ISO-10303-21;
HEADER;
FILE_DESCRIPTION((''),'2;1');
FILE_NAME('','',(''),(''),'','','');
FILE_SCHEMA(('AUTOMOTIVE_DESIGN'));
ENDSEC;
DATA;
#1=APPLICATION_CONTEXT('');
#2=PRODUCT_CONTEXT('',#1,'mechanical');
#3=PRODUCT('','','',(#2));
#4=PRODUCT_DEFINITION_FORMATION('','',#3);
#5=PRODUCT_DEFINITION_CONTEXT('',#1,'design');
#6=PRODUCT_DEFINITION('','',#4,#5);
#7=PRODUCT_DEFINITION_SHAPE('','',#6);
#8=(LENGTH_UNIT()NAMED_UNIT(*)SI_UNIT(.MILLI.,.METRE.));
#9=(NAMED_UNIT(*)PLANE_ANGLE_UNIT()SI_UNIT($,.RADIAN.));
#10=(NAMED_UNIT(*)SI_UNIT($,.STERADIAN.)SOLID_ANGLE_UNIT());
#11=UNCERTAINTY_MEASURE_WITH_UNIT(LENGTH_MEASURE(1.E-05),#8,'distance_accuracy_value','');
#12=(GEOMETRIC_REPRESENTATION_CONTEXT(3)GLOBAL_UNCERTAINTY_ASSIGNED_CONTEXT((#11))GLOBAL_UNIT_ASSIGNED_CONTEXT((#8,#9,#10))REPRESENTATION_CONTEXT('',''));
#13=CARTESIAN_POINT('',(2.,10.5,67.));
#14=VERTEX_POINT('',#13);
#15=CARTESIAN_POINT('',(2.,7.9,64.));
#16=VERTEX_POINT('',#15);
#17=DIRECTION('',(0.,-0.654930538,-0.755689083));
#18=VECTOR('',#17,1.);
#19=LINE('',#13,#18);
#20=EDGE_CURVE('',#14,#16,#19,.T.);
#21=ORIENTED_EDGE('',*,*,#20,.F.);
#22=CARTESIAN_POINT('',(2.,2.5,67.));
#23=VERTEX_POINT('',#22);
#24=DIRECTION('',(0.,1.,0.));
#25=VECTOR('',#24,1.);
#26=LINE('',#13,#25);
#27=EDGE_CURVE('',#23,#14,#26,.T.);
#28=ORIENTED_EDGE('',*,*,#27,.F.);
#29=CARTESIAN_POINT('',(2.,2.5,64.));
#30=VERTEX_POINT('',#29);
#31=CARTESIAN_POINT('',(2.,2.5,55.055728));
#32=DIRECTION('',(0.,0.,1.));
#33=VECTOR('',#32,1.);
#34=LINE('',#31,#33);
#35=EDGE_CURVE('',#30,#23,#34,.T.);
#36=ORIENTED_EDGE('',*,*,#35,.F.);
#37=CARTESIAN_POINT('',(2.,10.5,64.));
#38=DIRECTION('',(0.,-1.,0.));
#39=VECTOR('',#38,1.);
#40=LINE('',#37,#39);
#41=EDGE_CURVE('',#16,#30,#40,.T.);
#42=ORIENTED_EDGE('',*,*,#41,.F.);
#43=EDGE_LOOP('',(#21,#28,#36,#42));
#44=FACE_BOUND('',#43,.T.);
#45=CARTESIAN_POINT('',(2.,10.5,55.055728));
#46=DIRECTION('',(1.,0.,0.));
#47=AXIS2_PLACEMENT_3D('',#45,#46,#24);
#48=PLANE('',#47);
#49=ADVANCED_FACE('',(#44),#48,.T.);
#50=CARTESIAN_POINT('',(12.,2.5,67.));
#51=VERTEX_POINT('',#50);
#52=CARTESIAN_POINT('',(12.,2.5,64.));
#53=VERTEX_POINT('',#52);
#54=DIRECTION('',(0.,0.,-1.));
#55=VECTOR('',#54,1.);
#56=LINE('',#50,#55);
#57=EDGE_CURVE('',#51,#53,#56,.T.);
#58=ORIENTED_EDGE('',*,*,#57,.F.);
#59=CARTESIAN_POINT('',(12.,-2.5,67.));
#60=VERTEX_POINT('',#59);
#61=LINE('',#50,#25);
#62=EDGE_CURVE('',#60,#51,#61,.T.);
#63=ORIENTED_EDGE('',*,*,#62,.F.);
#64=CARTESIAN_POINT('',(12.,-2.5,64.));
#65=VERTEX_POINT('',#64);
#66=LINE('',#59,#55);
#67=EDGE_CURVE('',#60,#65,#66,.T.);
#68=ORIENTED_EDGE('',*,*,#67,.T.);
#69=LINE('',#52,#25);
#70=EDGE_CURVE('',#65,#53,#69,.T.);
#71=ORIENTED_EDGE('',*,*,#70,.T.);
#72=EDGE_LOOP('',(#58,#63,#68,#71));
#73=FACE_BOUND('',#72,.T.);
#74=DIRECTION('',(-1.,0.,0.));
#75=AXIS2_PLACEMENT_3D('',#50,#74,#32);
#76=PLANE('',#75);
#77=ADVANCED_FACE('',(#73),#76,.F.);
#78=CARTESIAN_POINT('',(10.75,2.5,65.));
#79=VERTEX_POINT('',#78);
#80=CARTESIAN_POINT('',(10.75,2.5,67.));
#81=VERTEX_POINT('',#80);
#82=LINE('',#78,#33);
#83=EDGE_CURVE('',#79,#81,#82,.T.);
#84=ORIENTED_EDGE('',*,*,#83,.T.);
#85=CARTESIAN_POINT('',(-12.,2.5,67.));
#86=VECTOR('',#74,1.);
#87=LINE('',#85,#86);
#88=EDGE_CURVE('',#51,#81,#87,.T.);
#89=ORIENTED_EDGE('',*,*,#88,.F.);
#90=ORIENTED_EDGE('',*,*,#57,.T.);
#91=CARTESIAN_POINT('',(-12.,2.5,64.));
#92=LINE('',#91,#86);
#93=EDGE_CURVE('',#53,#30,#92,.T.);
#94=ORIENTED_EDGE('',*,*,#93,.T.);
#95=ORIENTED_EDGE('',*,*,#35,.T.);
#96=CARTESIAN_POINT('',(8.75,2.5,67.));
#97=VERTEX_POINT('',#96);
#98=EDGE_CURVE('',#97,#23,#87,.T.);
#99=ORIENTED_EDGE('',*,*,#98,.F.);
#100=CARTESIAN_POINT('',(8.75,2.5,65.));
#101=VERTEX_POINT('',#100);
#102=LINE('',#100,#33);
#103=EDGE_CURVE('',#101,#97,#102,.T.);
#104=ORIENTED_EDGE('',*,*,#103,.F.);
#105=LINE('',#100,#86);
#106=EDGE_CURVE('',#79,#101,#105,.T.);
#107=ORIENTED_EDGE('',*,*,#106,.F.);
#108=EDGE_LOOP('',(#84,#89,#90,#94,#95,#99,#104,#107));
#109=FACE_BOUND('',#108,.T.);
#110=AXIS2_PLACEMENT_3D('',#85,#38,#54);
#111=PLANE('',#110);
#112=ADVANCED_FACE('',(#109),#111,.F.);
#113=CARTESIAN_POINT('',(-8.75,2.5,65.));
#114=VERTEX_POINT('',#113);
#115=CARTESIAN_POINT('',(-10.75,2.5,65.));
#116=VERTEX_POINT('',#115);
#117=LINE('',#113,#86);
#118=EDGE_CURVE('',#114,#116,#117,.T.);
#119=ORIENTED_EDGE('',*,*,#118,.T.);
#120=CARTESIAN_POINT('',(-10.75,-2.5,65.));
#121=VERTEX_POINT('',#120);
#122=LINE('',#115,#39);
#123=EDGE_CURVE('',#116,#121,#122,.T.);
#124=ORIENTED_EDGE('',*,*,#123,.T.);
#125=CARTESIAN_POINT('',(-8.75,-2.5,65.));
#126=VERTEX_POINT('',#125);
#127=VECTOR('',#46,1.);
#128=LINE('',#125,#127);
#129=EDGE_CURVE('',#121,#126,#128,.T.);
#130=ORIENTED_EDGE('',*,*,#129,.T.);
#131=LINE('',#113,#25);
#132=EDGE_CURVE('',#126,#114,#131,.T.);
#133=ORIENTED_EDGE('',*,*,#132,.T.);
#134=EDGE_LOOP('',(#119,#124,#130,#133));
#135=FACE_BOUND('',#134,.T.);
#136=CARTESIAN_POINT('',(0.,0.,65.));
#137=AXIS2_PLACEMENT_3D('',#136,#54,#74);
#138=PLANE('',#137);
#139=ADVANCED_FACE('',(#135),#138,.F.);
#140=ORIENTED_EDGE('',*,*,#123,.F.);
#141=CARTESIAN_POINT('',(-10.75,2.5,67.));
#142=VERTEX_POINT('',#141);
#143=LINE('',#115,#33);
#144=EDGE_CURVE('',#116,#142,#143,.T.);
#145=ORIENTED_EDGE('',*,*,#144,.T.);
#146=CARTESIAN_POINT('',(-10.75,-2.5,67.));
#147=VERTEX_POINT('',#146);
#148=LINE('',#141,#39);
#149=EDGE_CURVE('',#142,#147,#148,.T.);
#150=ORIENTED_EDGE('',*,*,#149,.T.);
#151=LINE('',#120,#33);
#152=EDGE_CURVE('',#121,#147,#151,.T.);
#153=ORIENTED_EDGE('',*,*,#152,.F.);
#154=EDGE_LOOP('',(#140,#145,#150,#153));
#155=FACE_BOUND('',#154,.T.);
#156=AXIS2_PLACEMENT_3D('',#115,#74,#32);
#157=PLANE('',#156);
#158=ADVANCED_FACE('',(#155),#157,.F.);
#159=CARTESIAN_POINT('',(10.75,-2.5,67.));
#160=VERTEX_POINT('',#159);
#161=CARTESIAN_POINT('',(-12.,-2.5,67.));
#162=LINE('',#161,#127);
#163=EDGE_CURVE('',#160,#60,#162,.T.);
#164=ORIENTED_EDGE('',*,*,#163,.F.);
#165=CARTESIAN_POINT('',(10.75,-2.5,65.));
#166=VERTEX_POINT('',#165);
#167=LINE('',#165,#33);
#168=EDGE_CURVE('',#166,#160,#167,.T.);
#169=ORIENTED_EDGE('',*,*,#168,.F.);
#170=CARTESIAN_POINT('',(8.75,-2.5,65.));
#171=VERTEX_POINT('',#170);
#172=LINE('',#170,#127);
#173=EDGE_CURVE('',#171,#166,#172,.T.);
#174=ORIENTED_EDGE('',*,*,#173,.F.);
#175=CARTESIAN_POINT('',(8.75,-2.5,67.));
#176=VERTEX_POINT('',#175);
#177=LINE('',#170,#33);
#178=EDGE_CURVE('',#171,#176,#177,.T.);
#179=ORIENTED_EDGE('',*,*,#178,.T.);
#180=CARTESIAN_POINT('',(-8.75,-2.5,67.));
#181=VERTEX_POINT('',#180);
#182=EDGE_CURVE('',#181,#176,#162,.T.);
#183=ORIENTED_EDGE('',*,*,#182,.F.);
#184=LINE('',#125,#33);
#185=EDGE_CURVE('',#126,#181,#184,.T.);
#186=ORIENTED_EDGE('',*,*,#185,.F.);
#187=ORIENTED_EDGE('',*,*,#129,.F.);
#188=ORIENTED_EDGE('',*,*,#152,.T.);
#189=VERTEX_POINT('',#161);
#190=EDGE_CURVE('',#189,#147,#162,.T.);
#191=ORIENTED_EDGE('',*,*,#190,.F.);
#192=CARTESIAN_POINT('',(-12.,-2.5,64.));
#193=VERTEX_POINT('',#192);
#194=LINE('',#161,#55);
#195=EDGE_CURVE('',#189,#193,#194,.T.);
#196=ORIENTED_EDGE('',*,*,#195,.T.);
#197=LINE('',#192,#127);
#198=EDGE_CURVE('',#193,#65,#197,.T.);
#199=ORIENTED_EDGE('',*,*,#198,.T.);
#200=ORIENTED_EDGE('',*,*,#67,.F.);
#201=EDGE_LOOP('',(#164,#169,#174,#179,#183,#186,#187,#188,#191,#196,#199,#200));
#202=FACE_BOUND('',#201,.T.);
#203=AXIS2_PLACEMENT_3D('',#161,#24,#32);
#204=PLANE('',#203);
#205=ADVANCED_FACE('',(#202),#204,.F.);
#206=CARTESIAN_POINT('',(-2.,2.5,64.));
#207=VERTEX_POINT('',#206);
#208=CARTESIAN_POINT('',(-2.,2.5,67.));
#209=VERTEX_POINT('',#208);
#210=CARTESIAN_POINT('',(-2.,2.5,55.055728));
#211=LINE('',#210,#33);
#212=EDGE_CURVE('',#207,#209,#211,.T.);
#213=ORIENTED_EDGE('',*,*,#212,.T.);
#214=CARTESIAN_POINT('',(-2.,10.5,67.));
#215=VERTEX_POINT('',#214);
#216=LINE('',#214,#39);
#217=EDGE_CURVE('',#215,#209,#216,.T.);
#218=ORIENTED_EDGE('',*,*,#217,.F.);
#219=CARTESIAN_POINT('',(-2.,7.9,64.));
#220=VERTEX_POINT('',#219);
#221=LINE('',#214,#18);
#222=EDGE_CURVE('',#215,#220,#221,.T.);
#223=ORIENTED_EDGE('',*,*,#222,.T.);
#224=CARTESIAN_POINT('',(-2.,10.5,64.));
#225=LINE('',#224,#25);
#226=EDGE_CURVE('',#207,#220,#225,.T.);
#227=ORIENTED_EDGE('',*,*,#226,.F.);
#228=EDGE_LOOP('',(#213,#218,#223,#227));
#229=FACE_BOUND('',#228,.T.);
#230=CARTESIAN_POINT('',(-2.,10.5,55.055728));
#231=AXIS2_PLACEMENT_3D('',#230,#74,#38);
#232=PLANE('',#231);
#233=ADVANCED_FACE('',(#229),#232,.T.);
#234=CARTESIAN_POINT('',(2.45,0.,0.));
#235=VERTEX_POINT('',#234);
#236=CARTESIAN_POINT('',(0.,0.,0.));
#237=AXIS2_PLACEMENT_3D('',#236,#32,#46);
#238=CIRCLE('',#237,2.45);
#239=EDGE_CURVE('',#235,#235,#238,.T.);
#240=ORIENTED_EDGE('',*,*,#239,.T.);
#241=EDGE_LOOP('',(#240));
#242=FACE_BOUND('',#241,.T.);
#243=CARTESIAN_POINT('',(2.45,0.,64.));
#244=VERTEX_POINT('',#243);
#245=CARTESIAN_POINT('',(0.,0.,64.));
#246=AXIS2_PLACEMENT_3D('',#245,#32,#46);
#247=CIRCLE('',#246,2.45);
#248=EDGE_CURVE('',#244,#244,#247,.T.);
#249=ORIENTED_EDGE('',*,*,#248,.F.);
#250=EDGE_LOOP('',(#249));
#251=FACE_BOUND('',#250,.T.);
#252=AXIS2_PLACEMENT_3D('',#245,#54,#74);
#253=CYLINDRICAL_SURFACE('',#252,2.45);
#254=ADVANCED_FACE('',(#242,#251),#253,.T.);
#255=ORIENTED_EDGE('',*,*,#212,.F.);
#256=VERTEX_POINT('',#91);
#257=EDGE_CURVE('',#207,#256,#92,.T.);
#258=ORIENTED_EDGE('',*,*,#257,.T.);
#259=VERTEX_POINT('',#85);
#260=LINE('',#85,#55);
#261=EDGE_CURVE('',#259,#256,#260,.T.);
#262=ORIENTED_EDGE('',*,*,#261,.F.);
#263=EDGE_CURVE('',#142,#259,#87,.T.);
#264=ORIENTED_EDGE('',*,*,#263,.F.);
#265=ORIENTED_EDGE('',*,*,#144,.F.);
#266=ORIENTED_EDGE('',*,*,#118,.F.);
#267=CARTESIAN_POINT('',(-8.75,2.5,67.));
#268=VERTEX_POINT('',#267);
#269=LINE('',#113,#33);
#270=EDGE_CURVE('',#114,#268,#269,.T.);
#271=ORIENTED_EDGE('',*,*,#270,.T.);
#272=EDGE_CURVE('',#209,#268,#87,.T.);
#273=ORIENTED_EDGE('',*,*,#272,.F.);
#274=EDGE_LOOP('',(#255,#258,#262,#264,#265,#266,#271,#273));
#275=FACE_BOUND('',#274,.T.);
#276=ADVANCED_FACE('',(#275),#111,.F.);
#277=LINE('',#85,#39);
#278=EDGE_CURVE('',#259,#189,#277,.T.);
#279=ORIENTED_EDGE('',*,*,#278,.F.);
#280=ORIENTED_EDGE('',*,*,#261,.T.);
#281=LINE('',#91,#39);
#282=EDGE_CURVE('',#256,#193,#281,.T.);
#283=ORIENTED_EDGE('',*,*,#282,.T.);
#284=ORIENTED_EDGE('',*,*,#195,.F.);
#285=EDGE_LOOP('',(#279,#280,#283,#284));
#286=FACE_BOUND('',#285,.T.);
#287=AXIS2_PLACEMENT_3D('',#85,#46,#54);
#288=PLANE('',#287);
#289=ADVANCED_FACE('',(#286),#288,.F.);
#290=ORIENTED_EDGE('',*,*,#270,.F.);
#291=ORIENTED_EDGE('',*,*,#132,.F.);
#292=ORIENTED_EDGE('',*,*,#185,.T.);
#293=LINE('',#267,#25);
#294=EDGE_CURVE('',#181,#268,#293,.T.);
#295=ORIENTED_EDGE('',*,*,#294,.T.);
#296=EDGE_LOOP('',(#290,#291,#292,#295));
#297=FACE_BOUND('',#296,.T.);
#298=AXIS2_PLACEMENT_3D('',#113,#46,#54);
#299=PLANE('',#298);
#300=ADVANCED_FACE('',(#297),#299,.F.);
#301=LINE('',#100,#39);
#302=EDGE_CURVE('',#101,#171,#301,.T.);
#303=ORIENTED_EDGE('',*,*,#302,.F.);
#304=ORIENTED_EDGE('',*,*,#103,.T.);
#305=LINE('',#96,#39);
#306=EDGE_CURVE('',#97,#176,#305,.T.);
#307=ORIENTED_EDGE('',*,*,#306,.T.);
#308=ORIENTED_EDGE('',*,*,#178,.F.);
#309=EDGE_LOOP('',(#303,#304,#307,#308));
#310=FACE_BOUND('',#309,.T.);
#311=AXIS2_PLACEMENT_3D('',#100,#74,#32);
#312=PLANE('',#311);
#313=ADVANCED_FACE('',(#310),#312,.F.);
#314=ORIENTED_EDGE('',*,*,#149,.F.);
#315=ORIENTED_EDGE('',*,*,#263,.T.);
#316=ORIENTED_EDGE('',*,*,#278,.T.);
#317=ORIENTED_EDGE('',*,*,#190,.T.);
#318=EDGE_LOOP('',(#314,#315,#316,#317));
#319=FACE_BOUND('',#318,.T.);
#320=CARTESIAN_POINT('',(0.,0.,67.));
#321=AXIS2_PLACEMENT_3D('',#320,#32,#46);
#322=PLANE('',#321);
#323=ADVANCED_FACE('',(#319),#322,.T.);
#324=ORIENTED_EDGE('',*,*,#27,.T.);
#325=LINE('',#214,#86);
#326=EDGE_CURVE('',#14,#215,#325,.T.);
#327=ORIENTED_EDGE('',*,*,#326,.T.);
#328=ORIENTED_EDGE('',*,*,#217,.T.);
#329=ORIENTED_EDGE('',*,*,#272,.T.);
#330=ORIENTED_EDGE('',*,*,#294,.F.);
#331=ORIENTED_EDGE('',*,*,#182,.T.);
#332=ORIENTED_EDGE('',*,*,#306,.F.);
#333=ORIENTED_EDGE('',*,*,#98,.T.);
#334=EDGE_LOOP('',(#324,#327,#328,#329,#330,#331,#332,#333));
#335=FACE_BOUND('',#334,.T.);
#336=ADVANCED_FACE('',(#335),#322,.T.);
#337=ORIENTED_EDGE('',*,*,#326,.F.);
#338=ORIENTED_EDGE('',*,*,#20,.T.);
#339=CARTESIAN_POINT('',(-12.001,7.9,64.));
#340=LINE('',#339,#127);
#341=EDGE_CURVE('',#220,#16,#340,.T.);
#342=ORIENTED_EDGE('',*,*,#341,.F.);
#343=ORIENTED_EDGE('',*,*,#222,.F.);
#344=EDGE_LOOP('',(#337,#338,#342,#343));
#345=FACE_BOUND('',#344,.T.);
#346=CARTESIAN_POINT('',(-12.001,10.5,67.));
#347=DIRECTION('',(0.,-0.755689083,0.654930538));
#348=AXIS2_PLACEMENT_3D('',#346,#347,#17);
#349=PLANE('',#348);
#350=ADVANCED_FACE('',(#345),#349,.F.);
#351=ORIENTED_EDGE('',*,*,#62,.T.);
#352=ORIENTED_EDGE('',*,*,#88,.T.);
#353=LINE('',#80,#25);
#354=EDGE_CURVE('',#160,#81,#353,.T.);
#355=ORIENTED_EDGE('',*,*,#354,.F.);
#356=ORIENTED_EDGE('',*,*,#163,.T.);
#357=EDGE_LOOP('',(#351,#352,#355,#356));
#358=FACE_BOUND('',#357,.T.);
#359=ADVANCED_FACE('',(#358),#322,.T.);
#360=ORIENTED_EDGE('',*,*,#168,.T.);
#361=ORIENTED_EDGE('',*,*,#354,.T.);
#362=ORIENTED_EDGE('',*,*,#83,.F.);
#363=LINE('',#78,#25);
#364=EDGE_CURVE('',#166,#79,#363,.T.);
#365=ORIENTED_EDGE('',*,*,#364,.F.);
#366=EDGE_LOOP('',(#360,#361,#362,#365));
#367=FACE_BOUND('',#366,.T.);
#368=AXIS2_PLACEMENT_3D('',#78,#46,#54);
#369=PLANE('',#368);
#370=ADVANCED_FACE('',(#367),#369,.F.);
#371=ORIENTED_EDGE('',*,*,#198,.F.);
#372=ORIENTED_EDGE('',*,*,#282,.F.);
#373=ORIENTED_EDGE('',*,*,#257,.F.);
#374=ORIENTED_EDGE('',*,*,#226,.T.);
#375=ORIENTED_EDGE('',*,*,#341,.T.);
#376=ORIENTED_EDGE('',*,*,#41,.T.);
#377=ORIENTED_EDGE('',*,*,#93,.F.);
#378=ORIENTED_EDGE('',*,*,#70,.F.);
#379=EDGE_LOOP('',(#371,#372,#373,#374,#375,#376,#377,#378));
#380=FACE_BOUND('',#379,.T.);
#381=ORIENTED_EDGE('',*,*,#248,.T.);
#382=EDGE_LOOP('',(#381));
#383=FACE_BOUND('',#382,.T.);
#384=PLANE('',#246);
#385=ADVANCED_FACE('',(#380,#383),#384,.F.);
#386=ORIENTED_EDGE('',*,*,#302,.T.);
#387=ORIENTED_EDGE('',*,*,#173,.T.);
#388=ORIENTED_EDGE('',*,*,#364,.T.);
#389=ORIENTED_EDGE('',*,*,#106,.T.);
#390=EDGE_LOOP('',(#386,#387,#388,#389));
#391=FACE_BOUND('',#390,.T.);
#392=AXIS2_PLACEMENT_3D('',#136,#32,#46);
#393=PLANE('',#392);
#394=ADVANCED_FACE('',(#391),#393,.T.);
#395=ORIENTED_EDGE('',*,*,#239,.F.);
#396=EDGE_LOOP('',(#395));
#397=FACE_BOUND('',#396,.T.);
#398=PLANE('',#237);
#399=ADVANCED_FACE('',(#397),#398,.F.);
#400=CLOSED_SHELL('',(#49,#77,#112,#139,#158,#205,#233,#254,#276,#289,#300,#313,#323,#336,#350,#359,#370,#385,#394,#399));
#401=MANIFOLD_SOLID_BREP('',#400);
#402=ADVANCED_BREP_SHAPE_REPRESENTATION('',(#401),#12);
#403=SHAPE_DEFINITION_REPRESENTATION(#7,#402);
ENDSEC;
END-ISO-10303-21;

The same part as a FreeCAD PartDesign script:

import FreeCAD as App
import Part
import Sketcher
from FreeCAD import Vector
Q = App.Units.Quantity

doc = App.newDocument("Part")
body = doc.addObject("PartDesign::Body", "Body")

sketch1 = body.newObject("Sketcher::SketchObject", "Sketch")
sketch1.AttachmentSupport = (doc.getObject("XY_Plane"), [""])
sketch1.MapMode = "FlatFace"
sketch1.addGeometry(Part.Circle(Vector(0, 0, 0), Vector(0, 0, 1), 2.5), False)
sketch1.addConstraint(Sketcher.Constraint("Coincident", 0, 3, -1, 1))
sketch1.addConstraint(Sketcher.Constraint("Diameter", 0, Q("4.9 mm")))
pad1 = body.newObject("PartDesign::Pad", "Pad")
pad1.Profile = sketch1
pad1.Length = 64

sketch2 = body.newObject("Sketcher::SketchObject", "Sketch001")
sketch2.AttachmentSupport = (doc.getObject("XY_Plane"), [""])
sketch2.MapMode = "FlatFace"
sketch2.AttachmentOffset = App.Placement(Vector(0, 0, 64), App.Rotation())
sketch2.addGeometry(Part.LineSegment(Vector(-12, 2, 0), Vector(-12, -2, 0)), False)
sketch2.addGeometry(Part.LineSegment(Vector(-12, -2, 0), Vector(12, -2, 0)), False)
sketch2.addGeometry(Part.LineSegment(Vector(12, -2, 0), Vector(12, 2, 0)), False)
sketch2.addGeometry(Part.LineSegment(Vector(12, 2, 0), Vector(-12, 2, 0)), False)
sketch2.addConstraint(Sketcher.Constraint("Coincident", 0, 2, 1, 1))
sketch2.addConstraint(Sketcher.Constraint("Coincident", 1, 2, 2, 1))
sketch2.addConstraint(Sketcher.Constraint("Coincident", 2, 2, 3, 1))
sketch2.addConstraint(Sketcher.Constraint("Coincident", 3, 2, 0, 1))
sketch2.addConstraint(Sketcher.Constraint("Vertical", 0))
sketch2.addConstraint(Sketcher.Constraint("Horizontal", 1))
sketch2.addConstraint(Sketcher.Constraint("Vertical", 2))
sketch2.addConstraint(Sketcher.Constraint("Horizontal", 3))
sketch2.addConstraint(Sketcher.Constraint("Symmetric", 0, 2, 2, 2, -1, 1))
sketch2.addConstraint(Sketcher.Constraint("DistanceX", 1, 1, 1, 2, Q("24 mm")))
sketch2.addConstraint(Sketcher.Constraint("DistanceY", 0, 2, 0, 1, Q("5 mm")))
pad2 = body.newObject("PartDesign::Pad", "Pad001")
pad2.Profile = sketch2
pad2.Length = 3

sketch3 = body.newObject("Sketcher::SketchObject", "Sketch002")
sketch3.AttachmentSupport = (doc.getObject("XY_Plane"), [""])
sketch3.MapMode = "FlatFace"
sketch3.AttachmentOffset = App.Placement(Vector(0, 0, 67), App.Rotation())
sketch3.addGeometry(Part.LineSegment(Vector(8.8, 2.5, 0), Vector(8.8, -2.5, 0)), False)
sketch3.addGeometry(Part.LineSegment(Vector(8.8, -2.5, 0), Vector(10.8, -2.5, 0)), False)
sketch3.addGeometry(Part.LineSegment(Vector(10.8, -2.5, 0), Vector(10.8, 2.5, 0)), False)
sketch3.addGeometry(Part.LineSegment(Vector(10.8, 2.5, 0), Vector(8.8, 2.5, 0)), False)
sketch3.addGeometry(Part.LineSegment(Vector(-10.8, 2.5, 0), Vector(-10.8, -2.5, 0)), False)
sketch3.addGeometry(Part.LineSegment(Vector(-10.8, -2.5, 0), Vector(-8.8, -2.5, 0)), False)
sketch3.addGeometry(Part.LineSegment(Vector(-8.8, -2.5, 0), Vector(-8.8, 2.5, 0)), False)
sketch3.addGeometry(Part.LineSegment(Vector(-8.8, 2.5, 0), Vector(-10.8, 2.5, 0)), False)
sketch3.addConstraint(Sketcher.Constraint("Coincident", 0, 2, 1, 1))
sketch3.addConstraint(Sketcher.Constraint("Coincident", 1, 2, 2, 1))
sketch3.addConstraint(Sketcher.Constraint("Coincident", 2, 2, 3, 1))
sketch3.addConstraint(Sketcher.Constraint("Coincident", 3, 2, 0, 1))
sketch3.addConstraint(Sketcher.Constraint("Coincident", 4, 2, 5, 1))
sketch3.addConstraint(Sketcher.Constraint("Coincident", 5, 2, 6, 1))
sketch3.addConstraint(Sketcher.Constraint("Coincident", 6, 2, 7, 1))
sketch3.addConstraint(Sketcher.Constraint("Coincident", 7, 2, 4, 1))
sketch3.addConstraint(Sketcher.Constraint("Vertical", 0))
sketch3.addConstraint(Sketcher.Constraint("Horizontal", 1))
sketch3.addConstraint(Sketcher.Constraint("Vertical", 2))
sketch3.addConstraint(Sketcher.Constraint("Horizontal", 3))
sketch3.addConstraint(Sketcher.Constraint("Vertical", 4))
sketch3.addConstraint(Sketcher.Constraint("Horizontal", 5))
sketch3.addConstraint(Sketcher.Constraint("Vertical", 6))
sketch3.addConstraint(Sketcher.Constraint("Horizontal", 7))
sketch3.addConstraint(Sketcher.Constraint("Symmetric", 2, 2, 4, 2, -1, 1))
sketch3.addConstraint(Sketcher.Constraint("Symmetric", 0, 2, 6, 2, -1, 1))
sketch3.addConstraint(Sketcher.Constraint("Horizontal", 1, 2, 4, 2))
sketch3.addConstraint(Sketcher.Constraint("DistanceX", 1, 1, 1, 2, Q("2 mm")))
sketch3.addConstraint(Sketcher.Constraint("DistanceY", 0, 2, 0, 1, Q("5 mm")))
sketch3.addConstraint(Sketcher.Constraint("DistanceX", 4, 2, 0, 2, Q("19.5 mm")))
pocket1 = body.newObject("PartDesign::Pocket", "Pocket")
pocket1.Profile = sketch3
pocket1.Length = 2

sketch4 = body.newObject("Sketcher::SketchObject", "Sketch003")
sketch4.AttachmentSupport = (doc.getObject("XY_Plane"), [""])
sketch4.MapMode = "FlatFace"
sketch4.AttachmentOffset = App.Placement(Vector(0, 0, 67), App.Rotation())
sketch4.addGeometry(Part.LineSegment(Vector(-2, 10.5, 0), Vector(-2, 2.5, 0)), False)
sketch4.addGeometry(Part.LineSegment(Vector(-2, 2.5, 0), Vector(2, 2.5, 0)), False)
sketch4.addGeometry(Part.LineSegment(Vector(2, 2.5, 0), Vector(2, 10.5, 0)), False)
sketch4.addGeometry(Part.LineSegment(Vector(2, 10.5, 0), Vector(-2, 10.5, 0)), False)
sketch4.addConstraint(Sketcher.Constraint("Coincident", 0, 2, 1, 1))
sketch4.addConstraint(Sketcher.Constraint("Coincident", 1, 2, 2, 1))
sketch4.addConstraint(Sketcher.Constraint("Coincident", 2, 2, 3, 1))
sketch4.addConstraint(Sketcher.Constraint("Coincident", 3, 2, 0, 1))
sketch4.addConstraint(Sketcher.Constraint("Vertical", 0))
sketch4.addConstraint(Sketcher.Constraint("Horizontal", 1))
sketch4.addConstraint(Sketcher.Constraint("Vertical", 2))
sketch4.addConstraint(Sketcher.Constraint("Horizontal", 3))
sketch4.addConstraint(Sketcher.Constraint("DistanceX", 1, 1, 1, 2, Q("4 mm")))
sketch4.addConstraint(Sketcher.Constraint("DistanceY", 0, 2, 0, 1, Q("8 mm")))
sketch4.addConstraint(Sketcher.Constraint("DistanceX", 0, 2, -1, 1, Q("2 mm")))
sketch4.addConstraint(Sketcher.Constraint("DistanceY", -1, 1, 0, 2, Q("2.5 mm")))
pad3 = body.newObject("PartDesign::Pad", "Pad002")
pad3.Profile = sketch4
pad3.Length = 3
pad3.Reversed = True

sketch5 = body.newObject("Sketcher::SketchObject", "Sketch004")
sketch5.AttachmentSupport = (doc.getObject("YZ_Plane"), [""])
sketch5.MapMode = "FlatFace"
sketch5.AttachmentOffset = App.Placement(Vector(0, 0, 2), App.Rotation())
sketch5.addGeometry(Part.LineSegment(Vector(10.5, 67, 0), Vector(7.9, 64, 0)), False)
sketch5.addGeometry(Part.LineSegment(Vector(7.9, 64, 0), Vector(10.5, 64, 0)), False)
sketch5.addGeometry(Part.LineSegment(Vector(10.5, 64, 0), Vector(10.5, 67, 0)), False)
sketch5.addConstraint(Sketcher.Constraint("Coincident", 0, 2, 1, 1))
sketch5.addConstraint(Sketcher.Constraint("Coincident", 1, 2, 2, 1))
sketch5.addConstraint(Sketcher.Constraint("Coincident", 2, 2, 0, 1))
sketch5.addConstraint(Sketcher.Constraint("Horizontal", 1))
sketch5.addConstraint(Sketcher.Constraint("Vertical", 2))
sketch5.addConstraint(Sketcher.Constraint("DistanceY", 2, 1, 2, 2, Q("3 mm")))
sketch5.addConstraint(Sketcher.Constraint("DistanceX", 1, 1, 1, 2, Q("2.6 mm")))
sketch5.addConstraint(Sketcher.Constraint("DistanceY", -1, 1, 0, 2, Q("64 mm")))
sketch5.addConstraint(Sketcher.Constraint("DistanceX", -1, 1, 0, 2, Q("7.9 mm")))
pocket2 = body.newObject("PartDesign::Pocket", "Pocket001")
pocket2.Profile = sketch5
pocket2.Type = "UpToFirst"

doc.recompute()
